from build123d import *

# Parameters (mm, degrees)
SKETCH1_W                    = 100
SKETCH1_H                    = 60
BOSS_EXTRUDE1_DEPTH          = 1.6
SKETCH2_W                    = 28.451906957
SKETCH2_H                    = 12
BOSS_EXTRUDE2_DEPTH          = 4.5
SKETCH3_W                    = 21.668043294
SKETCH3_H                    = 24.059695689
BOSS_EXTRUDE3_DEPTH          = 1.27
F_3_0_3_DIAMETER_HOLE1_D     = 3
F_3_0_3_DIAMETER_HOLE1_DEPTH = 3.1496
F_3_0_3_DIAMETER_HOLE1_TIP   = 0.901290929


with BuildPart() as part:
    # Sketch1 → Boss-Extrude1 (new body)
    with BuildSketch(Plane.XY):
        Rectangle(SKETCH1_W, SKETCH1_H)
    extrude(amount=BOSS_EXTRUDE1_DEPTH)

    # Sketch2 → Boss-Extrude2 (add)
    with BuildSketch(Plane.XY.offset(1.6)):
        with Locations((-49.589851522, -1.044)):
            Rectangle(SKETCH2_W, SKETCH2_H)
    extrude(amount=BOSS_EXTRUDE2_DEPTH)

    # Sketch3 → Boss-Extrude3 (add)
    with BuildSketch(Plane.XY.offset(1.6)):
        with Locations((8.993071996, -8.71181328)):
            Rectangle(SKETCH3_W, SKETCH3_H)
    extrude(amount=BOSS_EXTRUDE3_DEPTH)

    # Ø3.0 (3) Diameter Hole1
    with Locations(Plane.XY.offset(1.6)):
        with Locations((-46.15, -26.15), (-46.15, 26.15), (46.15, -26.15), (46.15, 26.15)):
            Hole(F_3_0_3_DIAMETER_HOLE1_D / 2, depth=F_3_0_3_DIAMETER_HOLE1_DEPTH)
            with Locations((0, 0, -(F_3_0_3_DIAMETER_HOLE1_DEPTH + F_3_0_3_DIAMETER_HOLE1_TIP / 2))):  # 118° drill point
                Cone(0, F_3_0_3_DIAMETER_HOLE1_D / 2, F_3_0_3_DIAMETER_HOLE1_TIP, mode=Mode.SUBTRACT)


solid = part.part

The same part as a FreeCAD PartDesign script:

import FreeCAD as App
import Part
import Sketcher
from FreeCAD import Vector
Q = App.Units.Quantity

doc = App.newDocument("Part")
body = doc.addObject("PartDesign::Body", "Body")

# Sketch on XY plane
sketch1 = body.newObject("Sketcher::SketchObject", "Sketch")
sketch1.AttachmentSupport = (doc.getObject("XY_Plane"), [""])
sketch1.MapMode = "FlatFace"
sketch1.addGeometry([
    Part.LineSegment(Vector(-50, 30, 0), Vector(-50, -30, 0)),
    Part.LineSegment(Vector(-50, -30, 0), Vector(50, -30, 0)),
    Part.LineSegment(Vector(50, -30, 0), Vector(50, 30, 0)),
    Part.LineSegment(Vector(50, 30, 0), Vector(-50, 30, 0)),
], False)
sketch1.addConstraint([
    Sketcher.Constraint("Coincident", 0, 2, 1, 1),
    Sketcher.Constraint("Coincident", 1, 2, 2, 1),
    Sketcher.Constraint("Coincident", 2, 2, 3, 1),
    Sketcher.Constraint("Coincident", 3, 2, 0, 1),
    Sketcher.Constraint("Vertical", 0),
    Sketcher.Constraint("Horizontal", 1),
    Sketcher.Constraint("Vertical", 2),
    Sketcher.Constraint("Horizontal", 3),
    Sketcher.Constraint("Symmetric", 0, 2, 2, 2, -1, 1),
    Sketcher.Constraint("DistanceX", 1, 1, 1, 2, Q("100 mm")),
    Sketcher.Constraint("DistanceY", 0, 2, 0, 1, Q("60 mm")),
])
pad1 = body.newObject("PartDesign::Pad", "Pad")
pad1.Profile = sketch1
pad1.Length = 1.6

# Sketch on XY plane
sketch2 = body.newObject("Sketcher::SketchObject", "Sketch001")
sketch2.AttachmentSupport = (doc.getObject("XY_Plane"), [""])
sketch2.MapMode = "FlatFace"
sketch2.AttachmentOffset = App.Placement(Vector(0, 0, 1.6), App.Rotation())
sketch2.addGeometry([
    Part.LineSegment(Vector(-64, 5, 0), Vector(-64, -7, 0)),
    Part.LineSegment(Vector(-64, -7, 0), Vector(-35, -7, 0)),
    Part.LineSegment(Vector(-35, -7, 0), Vector(-35, 5, 0)),
    Part.LineSegment(Vector(-35, 5, 0), Vector(-64, 5, 0)),
], False)
sketch2.addConstraint([
    Sketcher.Constraint("Coincident", 0, 2, 1, 1),
    Sketcher.Constraint("Coincident", 1, 2, 2, 1),
    Sketcher.Constraint("Coincident", 2, 2, 3, 1),
    Sketcher.Constraint("Coincident", 3, 2, 0, 1),
    Sketcher.Constraint("Vertical", 0),
    Sketcher.Constraint("Horizontal", 1),
    Sketcher.Constraint("Vertical", 2),
    Sketcher.Constraint("Horizontal", 3),
    Sketcher.Constraint("DistanceY", 0, 2, 0, 1, Q("12 mm")),
    Sketcher.Constraint("DistanceY", 0, 2, -1, 1, Q("7.044 mm")),
    Sketcher.Constraint("DistanceX", 1, 2, -1, 1, Q("35.363898 mm")),
    Sketcher.Constraint("DistanceX", 1, 1, 1, 2, Q("28.451907 mm")),
])
pad2 = body.newObject("PartDesign::Pad", "Pad001")
pad2.Profile = sketch2
pad2.Length = 4.5

# Sketch on XY plane
sketch3 = body.newObject("Sketcher::SketchObject", "Sketch002")
sketch3.AttachmentSupport = (doc.getObject("XY_Plane"), [""])
sketch3.MapMode = "FlatFace"
sketch3.AttachmentOffset = App.Placement(Vector(0, 0, 1.6), App.Rotation())
sketch3.addGeometry([
    Part.LineSegment(Vector(-2, 3, 0), Vector(-2, -21, 0)),
    Part.LineSegment(Vector(-2, -21, 0), Vector(20, -21, 0)),
    Part.LineSegment(Vector(20, -21, 0), Vector(20, 3, 0)),
    Part.LineSegment(Vector(20, 3, 0), Vector(-2, 3, 0)),
], False)
sketch3.addConstraint([
    Sketcher.Constraint("Coincident", 0, 2, 1, 1),
    Sketcher.Constraint("Coincident", 1, 2, 2, 1),
    Sketcher.Constraint("Coincident", 2, 2, 3, 1),
    Sketcher.Constraint("Coincident", 3, 2, 0, 1),
    Sketcher.Constraint("Vertical", 0),
    Sketcher.Constraint("Horizontal", 1),
    Sketcher.Constraint("Vertical", 2),
    Sketcher.Constraint("Horizontal", 3),
    Sketcher.Constraint("DistanceX", 1, 1, 1, 2, Q("21.668043 mm")),
    Sketcher.Constraint("DistanceY", 0, 2, 0, 1, Q("24.059696 mm")),
    Sketcher.Constraint("DistanceX", 0, 2, -1, 1, Q("1.84095 mm")),
    Sketcher.Constraint("DistanceY", 0, 2, -1, 1, Q("20.741661 mm")),
])
pad3 = body.newObject("PartDesign::Pad", "Pad002")
pad3.Profile = sketch3
pad3.Length = 1.27

# Sketch on XY plane
sketch4 = body.newObject("Sketcher::SketchObject", "Sketch003")
sketch4.AttachmentSupport = (doc.getObject("XY_Plane"), [""])
sketch4.MapMode = "FlatFace"
sketch4.AttachmentOffset = App.Placement(Vector(0, 0, 1.6), App.Rotation())
sketch4.addGeometry([
    Part.Circle(Vector(-46.1, -26.1, 0), Vector(0, 0, 1), 1.5),
    Part.Circle(Vector(-46.1, 26.1, 0), Vector(0, 0, 1), 1.5),
    Part.Circle(Vector(46.1, -26.1, 0), Vector(0, 0, 1), 1.5),
    Part.Circle(Vector(46.1, 26.1, 0), Vector(0, 0, 1), 1.5),
], False)
sketch4.addConstraint([
    Sketcher.Constraint("Equal", 0, 1),
    Sketcher.Constraint("Equal", 1, 2),
    Sketcher.Constraint("Equal", 2, 3),
    Sketcher.Constraint("Symmetric", 1, 3, 2, 3, -1, 1),
    Sketcher.Constraint("Symmetric", 0, 3, 3, 3, -1, 1),
    Sketcher.Constraint("Symmetric", 0, 3, 2, 3, -2),
    Sketcher.Constraint("Diameter", 0, Q("3 mm")),
    Sketcher.Constraint("DistanceY", 0, 3, 1, 3, Q("52.3 mm")),
    Sketcher.Constraint("DistanceX", 0, 3, 2, 3, Q("92.3 mm")),
])
doc.recompute()
hole = body.newObject("PartDesign::Hole", "Hole")
hole.Profile = sketch4
hole.ThreadType = "None"
hole.Diameter = 3
hole.DepthType = "Dimension"
hole.Depth = 3.1496
hole.DrillPoint = "Angled"
hole.DrillPointAngle = 118

doc.recompute()
